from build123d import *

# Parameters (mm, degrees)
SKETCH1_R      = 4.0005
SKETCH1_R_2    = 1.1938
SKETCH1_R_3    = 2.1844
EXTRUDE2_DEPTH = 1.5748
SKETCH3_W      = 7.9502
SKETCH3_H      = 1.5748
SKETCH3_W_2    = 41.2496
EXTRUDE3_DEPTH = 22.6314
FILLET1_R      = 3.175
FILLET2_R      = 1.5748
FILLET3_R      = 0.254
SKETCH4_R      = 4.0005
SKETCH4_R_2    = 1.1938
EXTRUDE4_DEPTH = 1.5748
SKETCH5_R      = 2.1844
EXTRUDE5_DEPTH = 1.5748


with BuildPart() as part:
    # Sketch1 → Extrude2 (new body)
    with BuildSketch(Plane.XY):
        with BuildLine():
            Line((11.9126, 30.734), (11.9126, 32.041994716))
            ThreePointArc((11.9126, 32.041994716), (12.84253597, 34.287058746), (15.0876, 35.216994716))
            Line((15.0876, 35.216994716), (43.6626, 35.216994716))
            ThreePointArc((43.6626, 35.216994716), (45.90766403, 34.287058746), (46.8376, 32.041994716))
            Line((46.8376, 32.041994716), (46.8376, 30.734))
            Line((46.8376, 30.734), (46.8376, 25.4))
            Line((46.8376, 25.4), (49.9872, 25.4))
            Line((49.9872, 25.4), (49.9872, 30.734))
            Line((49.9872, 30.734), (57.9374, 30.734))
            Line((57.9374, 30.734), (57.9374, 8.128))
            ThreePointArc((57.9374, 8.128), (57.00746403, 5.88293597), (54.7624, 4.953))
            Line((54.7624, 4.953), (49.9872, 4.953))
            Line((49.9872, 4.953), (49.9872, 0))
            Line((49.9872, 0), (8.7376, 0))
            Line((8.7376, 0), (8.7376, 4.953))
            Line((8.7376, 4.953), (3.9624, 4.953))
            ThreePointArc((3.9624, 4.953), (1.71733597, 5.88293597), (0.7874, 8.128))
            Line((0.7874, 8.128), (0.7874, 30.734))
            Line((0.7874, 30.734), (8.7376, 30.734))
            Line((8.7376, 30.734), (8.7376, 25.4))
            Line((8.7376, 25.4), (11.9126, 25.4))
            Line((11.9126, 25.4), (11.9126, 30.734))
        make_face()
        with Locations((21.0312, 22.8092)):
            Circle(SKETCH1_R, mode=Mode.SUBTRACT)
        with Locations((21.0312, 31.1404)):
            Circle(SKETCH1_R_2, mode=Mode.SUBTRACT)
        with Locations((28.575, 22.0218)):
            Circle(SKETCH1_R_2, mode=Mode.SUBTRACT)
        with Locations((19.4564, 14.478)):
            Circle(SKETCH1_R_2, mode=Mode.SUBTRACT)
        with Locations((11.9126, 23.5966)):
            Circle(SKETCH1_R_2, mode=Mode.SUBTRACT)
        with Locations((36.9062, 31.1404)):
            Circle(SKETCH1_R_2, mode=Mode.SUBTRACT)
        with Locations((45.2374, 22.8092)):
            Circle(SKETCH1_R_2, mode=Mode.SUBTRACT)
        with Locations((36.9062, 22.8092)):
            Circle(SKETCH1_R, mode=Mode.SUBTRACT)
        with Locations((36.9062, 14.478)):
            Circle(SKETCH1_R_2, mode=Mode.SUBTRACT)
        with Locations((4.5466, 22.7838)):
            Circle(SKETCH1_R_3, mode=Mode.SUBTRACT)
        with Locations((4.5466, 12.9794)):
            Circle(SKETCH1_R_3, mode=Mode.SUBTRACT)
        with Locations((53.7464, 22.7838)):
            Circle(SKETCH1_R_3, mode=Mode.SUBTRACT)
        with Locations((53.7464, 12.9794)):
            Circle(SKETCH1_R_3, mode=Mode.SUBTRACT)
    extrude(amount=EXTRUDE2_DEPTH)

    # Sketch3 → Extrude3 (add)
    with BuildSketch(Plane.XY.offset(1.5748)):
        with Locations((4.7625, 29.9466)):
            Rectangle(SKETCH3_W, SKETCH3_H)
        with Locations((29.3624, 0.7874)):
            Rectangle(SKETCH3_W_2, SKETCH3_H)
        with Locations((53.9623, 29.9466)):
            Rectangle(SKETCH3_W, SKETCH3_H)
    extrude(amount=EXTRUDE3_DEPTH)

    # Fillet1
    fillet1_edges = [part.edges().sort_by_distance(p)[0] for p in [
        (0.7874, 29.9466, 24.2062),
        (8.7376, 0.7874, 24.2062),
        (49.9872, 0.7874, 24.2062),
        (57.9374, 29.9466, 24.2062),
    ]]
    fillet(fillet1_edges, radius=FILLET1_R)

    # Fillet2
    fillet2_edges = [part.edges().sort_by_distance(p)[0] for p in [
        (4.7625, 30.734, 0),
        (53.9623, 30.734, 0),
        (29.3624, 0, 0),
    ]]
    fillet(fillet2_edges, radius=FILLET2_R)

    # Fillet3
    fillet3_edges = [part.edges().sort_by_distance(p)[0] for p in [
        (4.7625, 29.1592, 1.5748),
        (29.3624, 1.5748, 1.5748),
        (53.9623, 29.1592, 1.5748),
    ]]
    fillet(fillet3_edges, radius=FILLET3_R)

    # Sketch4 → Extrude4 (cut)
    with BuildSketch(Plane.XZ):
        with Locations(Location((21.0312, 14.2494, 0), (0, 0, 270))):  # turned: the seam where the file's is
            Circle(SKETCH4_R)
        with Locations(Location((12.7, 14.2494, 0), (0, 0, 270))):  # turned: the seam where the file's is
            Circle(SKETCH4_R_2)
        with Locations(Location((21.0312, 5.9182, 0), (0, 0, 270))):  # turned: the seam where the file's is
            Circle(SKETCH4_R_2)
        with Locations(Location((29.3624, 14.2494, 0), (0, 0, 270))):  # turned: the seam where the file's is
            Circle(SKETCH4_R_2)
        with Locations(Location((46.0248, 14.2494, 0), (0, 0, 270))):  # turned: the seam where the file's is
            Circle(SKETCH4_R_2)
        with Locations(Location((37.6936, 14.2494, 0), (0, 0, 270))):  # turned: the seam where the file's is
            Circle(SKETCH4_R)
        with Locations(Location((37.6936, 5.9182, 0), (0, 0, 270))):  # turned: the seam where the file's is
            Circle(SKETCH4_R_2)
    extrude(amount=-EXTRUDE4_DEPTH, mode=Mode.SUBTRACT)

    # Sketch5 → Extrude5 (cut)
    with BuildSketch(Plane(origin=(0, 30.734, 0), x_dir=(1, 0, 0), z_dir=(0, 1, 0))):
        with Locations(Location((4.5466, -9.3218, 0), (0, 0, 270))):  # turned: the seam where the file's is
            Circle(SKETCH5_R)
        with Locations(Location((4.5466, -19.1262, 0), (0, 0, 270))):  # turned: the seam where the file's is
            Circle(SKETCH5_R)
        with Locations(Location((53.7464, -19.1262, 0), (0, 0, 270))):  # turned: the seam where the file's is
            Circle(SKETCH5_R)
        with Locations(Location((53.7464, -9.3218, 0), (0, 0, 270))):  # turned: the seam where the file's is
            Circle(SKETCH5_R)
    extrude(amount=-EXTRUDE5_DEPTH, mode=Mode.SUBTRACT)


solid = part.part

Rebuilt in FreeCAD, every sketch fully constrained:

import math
import FreeCAD as App
import Part
import Sketcher

V = App.Vector
Q = App.Units.Quantity


def edges_at(feature, points):
    """Names of the edges that pass closest to the given points."""
    edges = feature.Shape.Edges
    near = lambda p: min(range(len(edges)), key=lambda i: edges[i].distToShape(Part.Vertex(*p))[0])
    return sorted({f"Edge{near(p) + 1}" for p in points})

doc = App.newDocument("Part")
body = doc.addObject("PartDesign::Body", "Body")

sketch1 = body.newObject("Sketcher::SketchObject", "Sketch")
sketch1.AttachmentSupport = (doc.getObject("XY_Plane"), [""])
sketch1.MapMode = "FlatFace"
sketch1.addGeometry([
    Part.ArcOfCircle(Part.Circle(V(15.1, 32, 0), V(0, 0, 1), 3.2), math.radians(90), math.radians(180)),
    Part.LineSegment(V(11.9, 32, 0), V(11.9, 25.4, 0)),
    Part.LineSegment(V(11.9, 25.4, 0), V(8.7, 25.4, 0)),
    Part.LineSegment(V(8.7, 25.4, 0), V(8.7, 30.7, 0)),
    Part.LineSegment(V(8.7, 30.7, 0), V(0.8, 30.7, 0)),
    Part.LineSegment(V(0.8, 30.7, 0), V(0.8, 8.1, 0)),
    Part.ArcOfCircle(Part.Circle(V(4, 8.1, 0), V(0, 0, 1), 3.2), math.radians(-180), math.radians(-90)),
    Part.LineSegment(V(4, 5, 0), V(8.7, 5, 0)),
    Part.LineSegment(V(8.7, 5, 0), V(8.7, 0, 0)),
    Part.LineSegment(V(8.7, 0, 0), V(50, 0, 0)),
    Part.LineSegment(V(50, 0, 0), V(50, 5, 0)),
    Part.LineSegment(V(50, 5, 0), V(54.8, 5, 0)),
    Part.ArcOfCircle(Part.Circle(V(54.8, 8.1, 0), V(0, 0, 1), 3.2), math.radians(-90), math.radians(0)),
    Part.LineSegment(V(57.9, 8.1, 0), V(57.9, 30.7, 0)),
    Part.LineSegment(V(57.9, 30.7, 0), V(50, 30.7, 0)),
    Part.LineSegment(V(50, 30.7, 0), V(50, 25.4, 0)),
    Part.LineSegment(V(50, 25.4, 0), V(46.8, 25.4, 0)),
    Part.LineSegment(V(46.8, 25.4, 0), V(46.8, 32, 0)),
    Part.ArcOfCircle(Part.Circle(V(43.7, 32, 0), V(0, 0, 1), 3.2), math.radians(0), math.radians(90)),
    Part.LineSegment(V(43.7, 35.2, 0), V(15.1, 35.2, 0)),
    Part.Circle(V(53.7, 13, 0), V(0, 0, 1), 2.2),
    Part.Circle(V(36.9, 14.5, 0), V(0, 0, 1), 1.2),
    Part.Circle(V(19.5, 14.5, 0), V(0, 0, 1), 1.2),
    Part.Circle(V(4.5, 13, 0), V(0, 0, 1), 2.2),
    Part.Circle(V(53.7, 22.8, 0), V(0, 0, 1), 2.2),
    Part.Circle(V(45.2, 22.8, 0), V(0, 0, 1), 1.2),
    Part.Circle(V(36.9, 22.8, 0), V(0, 0, 1), 4),
    Part.Circle(V(36.9, 31.1, 0), V(0, 0, 1), 1.2),
    Part.Circle(V(28.6, 22, 0), V(0, 0, 1), 1.2),
    Part.Circle(V(21, 22.8, 0), V(0, 0, 1), 4),
    Part.Circle(V(11.9, 23.6, 0), V(0, 0, 1), 1.2),
    Part.Circle(V(4.5, 22.8, 0), V(0, 0, 1), 2.2),
    Part.Circle(V(21, 31.1, 0), V(0, 0, 1), 1.2),
], False)
sketch1.addConstraint([
    Sketcher.Constraint("Tangent", 0, 2, 1, 1),
    Sketcher.Constraint("Coincident", 1, 2, 2, 1),
    Sketcher.Constraint("Coincident", 2, 2, 3, 1),
    Sketcher.Constraint("Coincident", 3, 2, 4, 1),
    Sketcher.Constraint("Coincident", 4, 2, 5, 1),
    Sketcher.Constraint("Tangent", 5, 2, 6, 1),
    Sketcher.Constraint("Tangent", 6, 2, 7, 1),
    Sketcher.Constraint("Coincident", 7, 2, 8, 1),
    Sketcher.Constraint("Coincident", 8, 2, 9, 1),
    Sketcher.Constraint("Coincident", 9, 2, 10, 1),
    Sketcher.Constraint("Coincident", 10, 2, 11, 1),
    Sketcher.Constraint("Tangent", 11, 2, 12, 1),
    Sketcher.Constraint("Tangent", 12, 2, 13, 1),
    Sketcher.Constraint("Coincident", 13, 2, 14, 1),
    Sketcher.Constraint("Coincident", 14, 2, 15, 1),
    Sketcher.Constraint("Coincident", 15, 2, 16, 1),
    Sketcher.Constraint("Coincident", 16, 2, 17, 1),
    Sketcher.Constraint("Tangent", 17, 2, 18, 1),
    Sketcher.Constraint("Tangent", 18, 2, 19, 1),
    Sketcher.Constraint("Tangent", 19, 2, 0, 1),
    Sketcher.Constraint("Vertical", 1),
    Sketcher.Constraint("Horizontal", 2),
    Sketcher.Constraint("Vertical", 3),
    Sketcher.Constraint("Horizontal", 4),
    Sketcher.Constraint("Vertical", 5),
    Sketcher.Constraint("Horizontal", 7),
    Sketcher.Constraint("Vertical", 8),
    Sketcher.Constraint("Horizontal", 9),
    Sketcher.Constraint("Vertical", 10),
    Sketcher.Constraint("Horizontal", 11),
    Sketcher.Constraint("Vertical", 13),
    Sketcher.Constraint("Horizontal", 14),
    Sketcher.Constraint("Vertical", 15),
    Sketcher.Constraint("Horizontal", 16),
    Sketcher.Constraint("Vertical", 17),
    Sketcher.Constraint("Horizontal", 19),
    Sketcher.Constraint("Equal", 0, 6),
    Sketcher.Constraint("Equal", 6, 12),
    Sketcher.Constraint("Equal", 12, 18),
    Sketcher.Constraint("Equal", 21, 22),
    Sketcher.Constraint("Equal", 20, 23),
    Sketcher.Constraint("Equal", 23, 24),
    Sketcher.Constraint("Equal", 22, 25),
    Sketcher.Constraint("Equal", 25, 27),
    Sketcher.Constraint("Equal", 27, 28),
    Sketcher.Constraint("Equal", 26, 29),
    Sketcher.Constraint("Equal", 28, 30),
    Sketcher.Constraint("Equal", 24, 31),
    Sketcher.Constraint("Equal", 30, 32),
    Sketcher.Constraint("PointOnObject", 8, 2, -1),
    Sketcher.Constraint("Horizontal", 6, 3, 12, 3),
    Sketcher.Constraint("Horizontal", 21, 3, 22, 3),
    Sketcher.Constraint("Horizontal", 20, 3, 23, 3),
    Sketcher.Constraint("Horizontal", 25, 3, 26, 3),
    Sketcher.Constraint("Horizontal", 26, 3, 29, 3),
    Sketcher.Constraint("Horizontal", 24, 3, 31, 3),
    Sketcher.Constraint("Horizontal", 27, 3, 32, 3),
    Sketcher.Constraint("Horizontal", 4, 2, 13, 2),
    Sketcher.Constraint("Horizontal", 2, 2, 15, 2),
    Sketcher.Constraint("Vertical", 20, 3, 24, 3),
    Sketcher.Constraint("Vertical", 21, 3, 26, 3),
    Sketcher.Constraint("Vertical", 26, 3, 27, 3),
    Sketcher.Constraint("Vertical", 23, 3, 31, 3),
    Sketcher.Constraint("Vertical", 29, 3, 32, 3),
    Sketcher.Constraint("Vertical", 30, 3, 0, 2),
    Sketcher.Constraint("Vertical", 3, 2, 7, 2),
    Sketcher.Constraint("Vertical", 10, 2, 14, 2),
    Sketcher.Constraint("Equal", 7, 11),
    Sketcher.Constraint("Diameter", 20, Q("0.172 in")),
    Sketcher.Constraint("Diameter", 21, Q("0.094 in")),
    Sketcher.Constraint("Diameter", 26, Q("0.315 in")),
    Sketcher.Constraint("DistanceY", -1, 1, 1, 2, Q("1 in")),
    Sketcher.Constraint("Radius", 0, Q("0.125 in")),
    Sketcher.Constraint("DistanceX", 6, 3, 12, 3, Q("2 in")),
    Sketcher.Constraint("DistanceY", 3, 1, 3, 2, Q("0.21 in")),
    Sketcher.Constraint("DistanceY", 5, 2, 5, 1, Q("0.89 in")),
    Sketcher.Constraint("DistanceX", 25, 3, 13, 2, Q("0.5 in")),
    Sketcher.Constraint("DistanceX", 2, 2, 2, 1, Q("0.125 in")),
    Sketcher.Constraint("DistanceX", 4, 2, 4, 1, Q("0.313 in")),
    Sketcher.Constraint("DistanceX", 16, 2, 16, 1, Q("0.124 in")),
    Sketcher.Constraint("DistanceY", -1, 1, 21, 3, Q("0.57 in")),
    Sketcher.Constraint("DistanceX", 20, 3, 12, 3, Q("0.04 in")),
    Sketcher.Constraint("DistanceX", 6, 3, 22, 3, Q("0.61 in")),
    Sketcher.Constraint("DistanceX", 23, 3, 18, 3, Q("1.54 in")),
    Sketcher.Constraint("DistanceX", -1, 1, 0, 3, Q("0.594 in")),
    Sketcher.Constraint("DistanceY", -1, 1, 20, 3, Q("0.511 in")),
    Sketcher.Constraint("DistanceX", -1, 1, 21, 3, Q("1.453 in")),
    Sketcher.Constraint("DistanceY", -1, 1, 24, 3, Q("0.897 in")),
    Sketcher.Constraint("DistanceY", -1, 1, 25, 3, Q("0.898 in")),
    Sketcher.Constraint("DistanceY", -1, 1, 27, 3, Q("1.226 in")),
    Sketcher.Constraint("DistanceX", -1, 1, 28, 3, Q("1.125 in")),
    Sketcher.Constraint("DistanceY", -1, 1, 28, 3, Q("0.867 in")),
    Sketcher.Constraint("DistanceX", -1, 1, 29, 3, Q("0.828 in")),
    Sketcher.Constraint("DistanceY", -1, 1, 30, 3, Q("0.929 in")),
    Sketcher.Constraint("DistanceY", 1, 2, 1, 1, 6.641995),
])
pad1 = body.newObject("PartDesign::Pad", "Pad")
pad1.Profile = sketch1
pad1.Length = Q("0.062 in")

sketch2 = body.newObject("Sketcher::SketchObject", "Sketch001")
sketch2.AttachmentSupport = (doc.getObject("XY_Plane"), [""])
sketch2.MapMode = "FlatFace"
sketch2.AttachmentOffset = App.Placement(V(0, 0, 0.062 * 25.4), App.Rotation())
sketch2.addGeometry([
    Part.LineSegment(V(0.8, 30.7, 0), V(0.8, 29.2, 0)),
    Part.LineSegment(V(0.8, 29.2, 0), V(8.7, 29.2, 0)),
    Part.LineSegment(V(8.7, 29.2, 0), V(8.7, 30.7, 0)),
    Part.LineSegment(V(8.7, 30.7, 0), V(0.8, 30.7, 0)),
    Part.LineSegment(V(8.7, 1.6, 0), V(8.7, 0, 0)),
    Part.LineSegment(V(8.7, 0, 0), V(50, 0, 0)),
    Part.LineSegment(V(50, 0, 0), V(50, 1.6, 0)),
    Part.LineSegment(V(50, 1.6, 0), V(8.7, 1.6, 0)),
    Part.LineSegment(V(50, 30.7, 0), V(50, 29.2, 0)),
    Part.LineSegment(V(50, 29.2, 0), V(57.9, 29.2, 0)),
    Part.LineSegment(V(57.9, 29.2, 0), V(57.9, 30.7, 0)),
    Part.LineSegment(V(57.9, 30.7, 0), V(50, 30.7, 0)),
], False)
sketch2.addConstraint([
    Sketcher.Constraint("Coincident", 0, 2, 1, 1),
    Sketcher.Constraint("Coincident", 1, 2, 2, 1),
    Sketcher.Constraint("Coincident", 2, 2, 3, 1),
    Sketcher.Constraint("Coincident", 3, 2, 0, 1),
    Sketcher.Constraint("Coincident", 4, 2, 5, 1),
    Sketcher.Constraint("Coincident", 5, 2, 6, 1),
    Sketcher.Constraint("Coincident", 6, 2, 7, 1),
    Sketcher.Constraint("Coincident", 7, 2, 4, 1),
    Sketcher.Constraint("Coincident", 8, 2, 9, 1),
    Sketcher.Constraint("Coincident", 9, 2, 10, 1),
    Sketcher.Constraint("Coincident", 10, 2, 11, 1),
    Sketcher.Constraint("Coincident", 11, 2, 8, 1),
    Sketcher.Constraint("Vertical", 0),
    Sketcher.Constraint("Horizontal", 1),
    Sketcher.Constraint("Vertical", 2),
    Sketcher.Constraint("Horizontal", 3),
    Sketcher.Constraint("Vertical", 4),
    Sketcher.Constraint("Horizontal", 5),
    Sketcher.Constraint("Vertical", 6),
    Sketcher.Constraint("Horizontal", 7),
    Sketcher.Constraint("Vertical", 8),
    Sketcher.Constraint("Horizontal", 9),
    Sketcher.Constraint("Vertical", 10),
    Sketcher.Constraint("Horizontal", 11),
    Sketcher.Constraint("PointOnObject", 4, 2, -1),
    Sketcher.Constraint("Horizontal", 1, 2, 8, 2),
    Sketcher.Constraint("Horizontal", 3, 2, 10, 2),
    Sketcher.Constraint("Vertical", 2, 2, 4, 2),
    Sketcher.Constraint("Vertical", 6, 2, 8, 2),
    Sketcher.Constraint("Equal", 3, 9),
    Sketcher.Constraint("Equal", 2, 4),
    Sketcher.Constraint("DistanceX", 1, 1, 1, 2, Q("0.313 in")),
    Sketcher.Constraint("DistanceX", 5, 1, 5, 2, Q("1.624 in")),
    Sketcher.Constraint("DistanceY", 0, 2, 0, 1, Q("0.062 in")),
    Sketcher.Constraint("DistanceY", -1, 1, 2, 2, Q("1.21 in")),
    Sketcher.Constraint("DistanceX", -1, 1, 0, 2, Q("0.031 in")),
])
pad2 = body.newObject("PartDesign::Pad", "Pad001")
pad2.Profile = sketch2
pad2.Length = Q("0.891 in")
doc.recompute()

fillet = body.newObject("PartDesign::Fillet", "Fillet")
fillet.Base = (pad2, edges_at(pad2, [
    (0.787, 29.947, 24.206),
    (8.738, 0.787, 24.206),
    (49.987, 0.787, 24.206),
    (57.937, 29.947, 24.206),
]))
fillet.Radius = Q("0.125 in")
doc.recompute()

fillet2 = body.newObject("PartDesign::Fillet", "Fillet001")
fillet2.Base = (fillet, edges_at(fillet, [(4.763, 30.734, 0), (53.962, 30.734, 0), (29.362, 0, 0)]))
fillet2.Radius = Q("0.062 in")
doc.recompute()

fillet3 = body.newObject("PartDesign::Fillet", "Fillet002")
fillet3.Base = (fillet2, edges_at(fillet2, [(4.763, 29.159, 1.575), (29.362, 1.575, 1.575), (53.962, 29.159, 1.575)]))
fillet3.Radius = Q("0.01 in")

sketch3 = body.newObject("Sketcher::SketchObject", "Sketch002")
sketch3.AttachmentSupport = (doc.getObject("XZ_Plane"), [""])
sketch3.MapMode = "FlatFace"
sketch3.addGeometry([
    Part.Circle(V(21, 14.2, 0), V(0, 0, 1), 4),
    Part.Circle(V(12.7, 14.2, 0), V(0, 0, 1), 1.2),
    Part.Circle(V(21, 5.9, 0), V(0, 0, 1), 1.2),
    Part.Circle(V(29.4, 14.2, 0), V(0, 0, 1), 1.2),
    Part.Circle(V(46, 14.2, 0), V(0, 0, 1), 1.2),
    Part.Circle(V(37.7, 14.2, 0), V(0, 0, 1), 4),
    Part.Circle(V(37.7, 5.9, 0), V(0, 0, 1), 1.2),
], False)
sketch3.addConstraint([
    Sketcher.Constraint("Equal", 1, 2),
    Sketcher.Constraint("Equal", 2, 3),
    Sketcher.Constraint("Equal", 3, 4),
    Sketcher.Constraint("Equal", 0, 5),
    Sketcher.Constraint("Equal", 4, 6),
    Sketcher.Constraint("Horizontal", 0, 3, 1, 3),
    Sketcher.Constraint("Horizontal", 1, 3, 3, 3),
    Sketcher.Constraint("Horizontal", 3, 3, 4, 3),
    Sketcher.Constraint("Horizontal", 4, 3, 5, 3),
    Sketcher.Constraint("Horizontal", 2, 3, 6, 3),
    Sketcher.Constraint("Vertical", 0, 3, 2, 3),
    Sketcher.Constraint("Vertical", 5, 3, 6, 3),
    Sketcher.Constraint("Diameter", 0, Q("0.315 in")),
    Sketcher.Constraint("Diameter", 1, Q("0.094 in")),
    Sketcher.Constraint("DistanceX", -1, 1, 1, 3, Q("0.5 in")),
    Sketcher.Constraint("DistanceX", -1, 1, 0, 3, Q("0.828 in")),
    Sketcher.Constraint("DistanceY", -1, 1, 0, 3, Q("0.561 in")),
    Sketcher.Constraint("DistanceY", -1, 1, 2, 3, Q("0.233 in")),
    Sketcher.Constraint("DistanceX", -1, 1, 3, 3, Q("1.156 in")),
    Sketcher.Constraint("DistanceX", -1, 1, 4, 3, Q("1.812 in")),
    Sketcher.Constraint("DistanceX", -1, 1, 5, 3, Q("1.484 in")),
])
pocket1 = body.newObject("PartDesign::Pocket", "Pocket")
pocket1.Profile = sketch3
pocket1.Length = Q("0.062 in")

sketch4 = body.newObject("Sketcher::SketchObject", "Sketch003")
sketch4.AttachmentSupport = (doc.getObject("XZ_Plane"), [""])
sketch4.MapMode = "FlatFace"
sketch4.AttachmentOffset = App.Placement(V(0, 0, -1.21 * 25.4), App.Rotation())
sketch4.addGeometry([
    Part.Circle(V(4.5, 9.3, 0), V(0, 0, 1), 2.2),
    Part.Circle(V(4.5, 19.1, 0), V(0, 0, 1), 2.2),
    Part.Circle(V(53.7, 19.1, 0), V(0, 0, 1), 2.2),
    Part.Circle(V(53.7, 9.3, 0), V(0, 0, 1), 2.2),
], False)
sketch4.addConstraint([
    Sketcher.Constraint("Equal", 0, 1),
    Sketcher.Constraint("Equal", 1, 2),
    Sketcher.Constraint("Equal", 2, 3),
    Sketcher.Constraint("Horizontal", 1, 3, 2, 3),
    Sketcher.Constraint("Horizontal", 0, 3, 3, 3),
    Sketcher.Constraint("Vertical", 0, 3, 1, 3),
    Sketcher.Constraint("Vertical", 2, 3, 3, 3),
    Sketcher.Constraint("Diameter", 0, Q("0.172 in")),
    Sketcher.Constraint("DistanceX", -1, 1, 0, 3, Q("0.179 in")),
    Sketcher.Constraint("DistanceY", -1, 1, 0, 3, Q("0.367 in")),
    Sketcher.Constraint("DistanceY", -1, 1, 1, 3, Q("0.753 in")),
    Sketcher.Constraint("DistanceX", -1, 1, 2, 3, Q("2.116 in")),
])
pocket2 = body.newObject("PartDesign::Pocket", "Pocket001")
pocket2.Profile = sketch4
pocket2.Length = Q("0.062 in")
pocket2.Reversed = True

doc.recompute()
